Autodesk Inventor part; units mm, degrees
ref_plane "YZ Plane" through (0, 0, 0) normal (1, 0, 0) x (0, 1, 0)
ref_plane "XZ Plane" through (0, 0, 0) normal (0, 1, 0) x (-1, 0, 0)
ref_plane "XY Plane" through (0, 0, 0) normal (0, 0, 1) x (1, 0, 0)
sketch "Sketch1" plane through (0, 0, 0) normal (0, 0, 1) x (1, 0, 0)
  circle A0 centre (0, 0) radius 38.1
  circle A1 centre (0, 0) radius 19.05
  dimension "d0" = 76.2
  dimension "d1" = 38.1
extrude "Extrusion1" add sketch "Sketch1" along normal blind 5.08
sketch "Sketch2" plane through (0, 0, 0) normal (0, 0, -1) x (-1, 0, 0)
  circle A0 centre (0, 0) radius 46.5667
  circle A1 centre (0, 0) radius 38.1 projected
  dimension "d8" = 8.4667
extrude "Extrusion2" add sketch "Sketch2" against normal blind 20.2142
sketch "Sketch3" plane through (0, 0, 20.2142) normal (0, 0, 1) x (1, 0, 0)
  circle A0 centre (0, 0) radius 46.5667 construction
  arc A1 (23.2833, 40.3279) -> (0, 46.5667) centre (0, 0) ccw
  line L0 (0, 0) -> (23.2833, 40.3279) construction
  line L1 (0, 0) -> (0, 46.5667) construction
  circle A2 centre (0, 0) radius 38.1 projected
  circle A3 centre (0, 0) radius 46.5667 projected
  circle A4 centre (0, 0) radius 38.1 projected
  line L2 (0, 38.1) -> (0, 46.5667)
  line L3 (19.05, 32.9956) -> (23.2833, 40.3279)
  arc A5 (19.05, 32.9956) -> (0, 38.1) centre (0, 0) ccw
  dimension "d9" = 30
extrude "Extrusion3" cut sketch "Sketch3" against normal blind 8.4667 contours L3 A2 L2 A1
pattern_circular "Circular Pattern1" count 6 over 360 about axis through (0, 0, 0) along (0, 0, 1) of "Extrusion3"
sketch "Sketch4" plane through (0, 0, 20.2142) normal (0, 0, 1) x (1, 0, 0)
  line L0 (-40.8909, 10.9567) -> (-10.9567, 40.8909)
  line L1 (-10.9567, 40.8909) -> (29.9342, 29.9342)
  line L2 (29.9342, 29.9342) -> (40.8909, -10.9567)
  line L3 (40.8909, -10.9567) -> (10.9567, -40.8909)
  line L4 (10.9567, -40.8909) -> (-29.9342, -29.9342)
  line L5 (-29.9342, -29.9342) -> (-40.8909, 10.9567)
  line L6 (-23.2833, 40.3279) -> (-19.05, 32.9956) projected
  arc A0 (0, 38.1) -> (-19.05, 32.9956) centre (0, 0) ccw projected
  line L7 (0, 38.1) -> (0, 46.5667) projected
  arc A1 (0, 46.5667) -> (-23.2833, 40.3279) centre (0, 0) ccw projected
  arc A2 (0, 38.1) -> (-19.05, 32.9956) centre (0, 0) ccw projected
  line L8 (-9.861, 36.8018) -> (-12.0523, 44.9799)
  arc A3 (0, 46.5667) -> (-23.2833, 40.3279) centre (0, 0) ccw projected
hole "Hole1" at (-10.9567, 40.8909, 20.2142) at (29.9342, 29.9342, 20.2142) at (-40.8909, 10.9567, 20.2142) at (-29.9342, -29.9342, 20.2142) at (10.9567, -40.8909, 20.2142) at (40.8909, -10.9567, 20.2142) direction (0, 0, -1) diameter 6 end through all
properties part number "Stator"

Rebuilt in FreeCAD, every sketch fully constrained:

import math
import FreeCAD as App
import Part
import Sketcher
from FreeCAD import Vector
Q = App.Units.Quantity

doc = App.newDocument("Part")
body = doc.addObject("PartDesign::Body", "Body")

# Sketch on XY plane
sketch1 = body.newObject("Sketcher::SketchObject", "Sketch")
sketch1.AttachmentSupport = (doc.getObject("XY_Plane"), [""])
sketch1.MapMode = "FlatFace"
sketch1.addGeometry(Part.Circle(Vector(0, 0, 0), Vector(0, 0, 1), 38.1), False)
sketch1.addGeometry(Part.Circle(Vector(0, 0, 0), Vector(0, 0, 1), 19.05), False)
sketch1.addConstraint(Sketcher.Constraint("Coincident", 0, 3, -1, 1))
sketch1.addConstraint(Sketcher.Constraint("Coincident", 1, 3, -1, 1))
sketch1.addConstraint(Sketcher.Constraint("Diameter", 0, Q("3 in")))
sketch1.addConstraint(Sketcher.Constraint("Diameter", 1, Q("1.5 in")))
pad1 = body.newObject("PartDesign::Pad", "Pad")
pad1.Profile = sketch1
pad1.Length = Q("0.2 in")

# Sketch on XY plane
sketch2 = body.newObject("Sketcher::SketchObject", "Sketch001")
sketch2.AttachmentSupport = (doc.getObject("XY_Plane"), [""])
sketch2.MapMode = "FlatFace"
sketch2.addGeometry(Part.Circle(Vector(0, 0, 0), Vector(0, 0, 1), 46.5667), False)
sketch2.addGeometry(Part.Circle(Vector(0, 0, 0), Vector(0, 0, 1), 38.1), False)
sketch2.addConstraint(Sketcher.Constraint("Coincident", 0, 3, -1, 1))
sketch2.addConstraint(Sketcher.Constraint("Coincident", 1, 3, -1, 1))
sketch2.addConstraint(Sketcher.Constraint("Diameter", 1, Q("3 in")))
sketch2.addConstraint(Sketcher.Constraint("Diameter", 0, Q("93.1334 mm")))
pad2 = body.newObject("PartDesign::Pad", "Pad001")
pad2.Profile = sketch2
pad2.Length = 20.2142

# Sketch on XY plane
sketch3 = body.newObject("Sketcher::SketchObject", "Sketch002")
sketch3.AttachmentSupport = (doc.getObject("XY_Plane"), [""])
sketch3.MapMode = "FlatFace"
sketch3.AttachmentOffset = App.Placement(Vector(0, 0, 20.2142), App.Rotation())
sketch3.addGeometry(Part.LineSegment(Vector(19.05, 32.9956, 0), Vector(23.2833, 40.3279, 0)), False)
sketch3.addGeometry(Part.ArcOfCircle(Part.Circle(Vector(0, 0, 0), Vector(0, 0, 1), 46.5667), math.radians(60.000025), math.radians(90)), False)
sketch3.addGeometry(Part.LineSegment(Vector(0, 46.5667, 0), Vector(0, 38.1, 0)), False)
sketch3.addGeometry(Part.ArcOfCircle(Part.Circle(Vector(0, 0, 0), Vector(0, 0, 1), 38.1), math.radians(60.000024), math.radians(90)), False)
sketch3.addConstraint(Sketcher.Constraint("Coincident", 0, 2, 1, 1))
sketch3.addConstraint(Sketcher.Constraint("Coincident", 1, 2, 2, 1))
sketch3.addConstraint(Sketcher.Constraint("Coincident", 2, 2, 3, 2))
sketch3.addConstraint(Sketcher.Constraint("Coincident", 3, 1, 0, 1))
sketch3.addConstraint(Sketcher.Constraint("Vertical", 2))
sketch3.addConstraint(Sketcher.Constraint("Coincident", 1, 3, -1, 1))
sketch3.addConstraint(Sketcher.Constraint("Coincident", 3, 3, -1, 1))
sketch3.addConstraint(Sketcher.Constraint("PointOnObject", 1, 2, -2))
sketch3.addConstraint(Sketcher.Constraint("Radius", 3, Q("1.5 in")))
sketch3.addConstraint(Sketcher.Constraint("Angle", 0, Q("60 deg")))
sketch3.addConstraint(Sketcher.Constraint("DistanceX", -1, 1, 3, 1, Q("0.75 in")))
sketch3.addConstraint(Sketcher.Constraint("Radius", 1, Q("46.5667 mm")))
pocket1 = body.newObject("PartDesign::Pocket", "Pocket")
pocket1.Profile = sketch3
pocket1.Length = 8.4667
doc.recompute()

polarpattern = body.newObject("PartDesign::PolarPattern", "PolarPattern")
polarpattern.Originals = [pocket1]
polarpattern.Axis = (doc.getObject("Z_Axis"), [""])
polarpattern.Angle = 360
polarpattern.Occurrences = 6
body.Tip = polarpattern

# Sketch on XY plane
sketch4 = body.newObject("Sketcher::SketchObject", "Sketch003")
sketch4.AttachmentSupport = (doc.getObject("XY_Plane"), [""])
sketch4.MapMode = "FlatFace"
sketch4.AttachmentOffset = App.Placement(Vector(0, 0, 20.2142), App.Rotation())
sketch4.addGeometry(Part.Circle(Vector(-10.9567, 40.8909, 0), Vector(0, 0, 1), 3), False)
sketch4.addGeometry(Part.Circle(Vector(29.9342, 29.9342, 0), Vector(0, 0, 1), 3), False)
sketch4.addGeometry(Part.Circle(Vector(-40.8909, 10.9567, 0), Vector(0, 0, 1), 3), False)
sketch4.addGeometry(Part.Circle(Vector(-29.9342, -29.9342, 0), Vector(0, 0, 1), 3), False)
sketch4.addGeometry(Part.Circle(Vector(10.9567, -40.8909, 0), Vector(0, 0, 1), 3), False)
sketch4.addGeometry(Part.Circle(Vector(40.8909, -10.9567, 0), Vector(0, 0, 1), 3), False)
sketch4.addConstraint(Sketcher.Constraint("Equal", 0, 1))
sketch4.addConstraint(Sketcher.Constraint("Equal", 1, 2))
sketch4.addConstraint(Sketcher.Constraint("Equal", 2, 3))
sketch4.addConstraint(Sketcher.Constraint("Equal", 3, 4))
sketch4.addConstraint(Sketcher.Constraint("Equal", 4, 5))
sketch4.addConstraint(Sketcher.Constraint("Symmetric", 1, 3, 3, 3, -1, 1))
sketch4.addConstraint(Sketcher.Constraint("Symmetric", 0, 3, 4, 3, -1, 1))
sketch4.addConstraint(Sketcher.Constraint("Symmetric", 2, 3, 5, 3, -1, 1))
sketch4.addConstraint(Sketcher.Constraint("Diameter", 0, Q("6 mm")))
sketch4.addConstraint(Sketcher.Constraint("DistanceX", -1, 1, 1, 3, Q("1.1785 in")))
sketch4.addConstraint(Sketcher.Constraint("DistanceY", -1, 1, 1, 3, Q("1.1785 in")))
sketch4.addConstraint(Sketcher.Constraint("DistanceX", 2, 3, 0, 3, Q("1.1785 in")))
sketch4.addConstraint(Sketcher.Constraint("DistanceY", 2, 3, 0, 3, Q("1.1785 in")))
sketch4.addConstraint(Sketcher.Constraint("DistanceX", 2, 3, 1, 3, Q("2.7884 in")))
sketch4.addConstraint(Sketcher.Constraint("DistanceY", 3, 3, 0, 3, Q("2.7884 in")))
doc.recompute()
hole = body.newObject("PartDesign::Hole", "Hole")
hole.Profile = sketch4
hole.ThreadType = "None"
hole.Diameter = 6
hole.DepthType = "ThroughAll"

doc.recompute()
